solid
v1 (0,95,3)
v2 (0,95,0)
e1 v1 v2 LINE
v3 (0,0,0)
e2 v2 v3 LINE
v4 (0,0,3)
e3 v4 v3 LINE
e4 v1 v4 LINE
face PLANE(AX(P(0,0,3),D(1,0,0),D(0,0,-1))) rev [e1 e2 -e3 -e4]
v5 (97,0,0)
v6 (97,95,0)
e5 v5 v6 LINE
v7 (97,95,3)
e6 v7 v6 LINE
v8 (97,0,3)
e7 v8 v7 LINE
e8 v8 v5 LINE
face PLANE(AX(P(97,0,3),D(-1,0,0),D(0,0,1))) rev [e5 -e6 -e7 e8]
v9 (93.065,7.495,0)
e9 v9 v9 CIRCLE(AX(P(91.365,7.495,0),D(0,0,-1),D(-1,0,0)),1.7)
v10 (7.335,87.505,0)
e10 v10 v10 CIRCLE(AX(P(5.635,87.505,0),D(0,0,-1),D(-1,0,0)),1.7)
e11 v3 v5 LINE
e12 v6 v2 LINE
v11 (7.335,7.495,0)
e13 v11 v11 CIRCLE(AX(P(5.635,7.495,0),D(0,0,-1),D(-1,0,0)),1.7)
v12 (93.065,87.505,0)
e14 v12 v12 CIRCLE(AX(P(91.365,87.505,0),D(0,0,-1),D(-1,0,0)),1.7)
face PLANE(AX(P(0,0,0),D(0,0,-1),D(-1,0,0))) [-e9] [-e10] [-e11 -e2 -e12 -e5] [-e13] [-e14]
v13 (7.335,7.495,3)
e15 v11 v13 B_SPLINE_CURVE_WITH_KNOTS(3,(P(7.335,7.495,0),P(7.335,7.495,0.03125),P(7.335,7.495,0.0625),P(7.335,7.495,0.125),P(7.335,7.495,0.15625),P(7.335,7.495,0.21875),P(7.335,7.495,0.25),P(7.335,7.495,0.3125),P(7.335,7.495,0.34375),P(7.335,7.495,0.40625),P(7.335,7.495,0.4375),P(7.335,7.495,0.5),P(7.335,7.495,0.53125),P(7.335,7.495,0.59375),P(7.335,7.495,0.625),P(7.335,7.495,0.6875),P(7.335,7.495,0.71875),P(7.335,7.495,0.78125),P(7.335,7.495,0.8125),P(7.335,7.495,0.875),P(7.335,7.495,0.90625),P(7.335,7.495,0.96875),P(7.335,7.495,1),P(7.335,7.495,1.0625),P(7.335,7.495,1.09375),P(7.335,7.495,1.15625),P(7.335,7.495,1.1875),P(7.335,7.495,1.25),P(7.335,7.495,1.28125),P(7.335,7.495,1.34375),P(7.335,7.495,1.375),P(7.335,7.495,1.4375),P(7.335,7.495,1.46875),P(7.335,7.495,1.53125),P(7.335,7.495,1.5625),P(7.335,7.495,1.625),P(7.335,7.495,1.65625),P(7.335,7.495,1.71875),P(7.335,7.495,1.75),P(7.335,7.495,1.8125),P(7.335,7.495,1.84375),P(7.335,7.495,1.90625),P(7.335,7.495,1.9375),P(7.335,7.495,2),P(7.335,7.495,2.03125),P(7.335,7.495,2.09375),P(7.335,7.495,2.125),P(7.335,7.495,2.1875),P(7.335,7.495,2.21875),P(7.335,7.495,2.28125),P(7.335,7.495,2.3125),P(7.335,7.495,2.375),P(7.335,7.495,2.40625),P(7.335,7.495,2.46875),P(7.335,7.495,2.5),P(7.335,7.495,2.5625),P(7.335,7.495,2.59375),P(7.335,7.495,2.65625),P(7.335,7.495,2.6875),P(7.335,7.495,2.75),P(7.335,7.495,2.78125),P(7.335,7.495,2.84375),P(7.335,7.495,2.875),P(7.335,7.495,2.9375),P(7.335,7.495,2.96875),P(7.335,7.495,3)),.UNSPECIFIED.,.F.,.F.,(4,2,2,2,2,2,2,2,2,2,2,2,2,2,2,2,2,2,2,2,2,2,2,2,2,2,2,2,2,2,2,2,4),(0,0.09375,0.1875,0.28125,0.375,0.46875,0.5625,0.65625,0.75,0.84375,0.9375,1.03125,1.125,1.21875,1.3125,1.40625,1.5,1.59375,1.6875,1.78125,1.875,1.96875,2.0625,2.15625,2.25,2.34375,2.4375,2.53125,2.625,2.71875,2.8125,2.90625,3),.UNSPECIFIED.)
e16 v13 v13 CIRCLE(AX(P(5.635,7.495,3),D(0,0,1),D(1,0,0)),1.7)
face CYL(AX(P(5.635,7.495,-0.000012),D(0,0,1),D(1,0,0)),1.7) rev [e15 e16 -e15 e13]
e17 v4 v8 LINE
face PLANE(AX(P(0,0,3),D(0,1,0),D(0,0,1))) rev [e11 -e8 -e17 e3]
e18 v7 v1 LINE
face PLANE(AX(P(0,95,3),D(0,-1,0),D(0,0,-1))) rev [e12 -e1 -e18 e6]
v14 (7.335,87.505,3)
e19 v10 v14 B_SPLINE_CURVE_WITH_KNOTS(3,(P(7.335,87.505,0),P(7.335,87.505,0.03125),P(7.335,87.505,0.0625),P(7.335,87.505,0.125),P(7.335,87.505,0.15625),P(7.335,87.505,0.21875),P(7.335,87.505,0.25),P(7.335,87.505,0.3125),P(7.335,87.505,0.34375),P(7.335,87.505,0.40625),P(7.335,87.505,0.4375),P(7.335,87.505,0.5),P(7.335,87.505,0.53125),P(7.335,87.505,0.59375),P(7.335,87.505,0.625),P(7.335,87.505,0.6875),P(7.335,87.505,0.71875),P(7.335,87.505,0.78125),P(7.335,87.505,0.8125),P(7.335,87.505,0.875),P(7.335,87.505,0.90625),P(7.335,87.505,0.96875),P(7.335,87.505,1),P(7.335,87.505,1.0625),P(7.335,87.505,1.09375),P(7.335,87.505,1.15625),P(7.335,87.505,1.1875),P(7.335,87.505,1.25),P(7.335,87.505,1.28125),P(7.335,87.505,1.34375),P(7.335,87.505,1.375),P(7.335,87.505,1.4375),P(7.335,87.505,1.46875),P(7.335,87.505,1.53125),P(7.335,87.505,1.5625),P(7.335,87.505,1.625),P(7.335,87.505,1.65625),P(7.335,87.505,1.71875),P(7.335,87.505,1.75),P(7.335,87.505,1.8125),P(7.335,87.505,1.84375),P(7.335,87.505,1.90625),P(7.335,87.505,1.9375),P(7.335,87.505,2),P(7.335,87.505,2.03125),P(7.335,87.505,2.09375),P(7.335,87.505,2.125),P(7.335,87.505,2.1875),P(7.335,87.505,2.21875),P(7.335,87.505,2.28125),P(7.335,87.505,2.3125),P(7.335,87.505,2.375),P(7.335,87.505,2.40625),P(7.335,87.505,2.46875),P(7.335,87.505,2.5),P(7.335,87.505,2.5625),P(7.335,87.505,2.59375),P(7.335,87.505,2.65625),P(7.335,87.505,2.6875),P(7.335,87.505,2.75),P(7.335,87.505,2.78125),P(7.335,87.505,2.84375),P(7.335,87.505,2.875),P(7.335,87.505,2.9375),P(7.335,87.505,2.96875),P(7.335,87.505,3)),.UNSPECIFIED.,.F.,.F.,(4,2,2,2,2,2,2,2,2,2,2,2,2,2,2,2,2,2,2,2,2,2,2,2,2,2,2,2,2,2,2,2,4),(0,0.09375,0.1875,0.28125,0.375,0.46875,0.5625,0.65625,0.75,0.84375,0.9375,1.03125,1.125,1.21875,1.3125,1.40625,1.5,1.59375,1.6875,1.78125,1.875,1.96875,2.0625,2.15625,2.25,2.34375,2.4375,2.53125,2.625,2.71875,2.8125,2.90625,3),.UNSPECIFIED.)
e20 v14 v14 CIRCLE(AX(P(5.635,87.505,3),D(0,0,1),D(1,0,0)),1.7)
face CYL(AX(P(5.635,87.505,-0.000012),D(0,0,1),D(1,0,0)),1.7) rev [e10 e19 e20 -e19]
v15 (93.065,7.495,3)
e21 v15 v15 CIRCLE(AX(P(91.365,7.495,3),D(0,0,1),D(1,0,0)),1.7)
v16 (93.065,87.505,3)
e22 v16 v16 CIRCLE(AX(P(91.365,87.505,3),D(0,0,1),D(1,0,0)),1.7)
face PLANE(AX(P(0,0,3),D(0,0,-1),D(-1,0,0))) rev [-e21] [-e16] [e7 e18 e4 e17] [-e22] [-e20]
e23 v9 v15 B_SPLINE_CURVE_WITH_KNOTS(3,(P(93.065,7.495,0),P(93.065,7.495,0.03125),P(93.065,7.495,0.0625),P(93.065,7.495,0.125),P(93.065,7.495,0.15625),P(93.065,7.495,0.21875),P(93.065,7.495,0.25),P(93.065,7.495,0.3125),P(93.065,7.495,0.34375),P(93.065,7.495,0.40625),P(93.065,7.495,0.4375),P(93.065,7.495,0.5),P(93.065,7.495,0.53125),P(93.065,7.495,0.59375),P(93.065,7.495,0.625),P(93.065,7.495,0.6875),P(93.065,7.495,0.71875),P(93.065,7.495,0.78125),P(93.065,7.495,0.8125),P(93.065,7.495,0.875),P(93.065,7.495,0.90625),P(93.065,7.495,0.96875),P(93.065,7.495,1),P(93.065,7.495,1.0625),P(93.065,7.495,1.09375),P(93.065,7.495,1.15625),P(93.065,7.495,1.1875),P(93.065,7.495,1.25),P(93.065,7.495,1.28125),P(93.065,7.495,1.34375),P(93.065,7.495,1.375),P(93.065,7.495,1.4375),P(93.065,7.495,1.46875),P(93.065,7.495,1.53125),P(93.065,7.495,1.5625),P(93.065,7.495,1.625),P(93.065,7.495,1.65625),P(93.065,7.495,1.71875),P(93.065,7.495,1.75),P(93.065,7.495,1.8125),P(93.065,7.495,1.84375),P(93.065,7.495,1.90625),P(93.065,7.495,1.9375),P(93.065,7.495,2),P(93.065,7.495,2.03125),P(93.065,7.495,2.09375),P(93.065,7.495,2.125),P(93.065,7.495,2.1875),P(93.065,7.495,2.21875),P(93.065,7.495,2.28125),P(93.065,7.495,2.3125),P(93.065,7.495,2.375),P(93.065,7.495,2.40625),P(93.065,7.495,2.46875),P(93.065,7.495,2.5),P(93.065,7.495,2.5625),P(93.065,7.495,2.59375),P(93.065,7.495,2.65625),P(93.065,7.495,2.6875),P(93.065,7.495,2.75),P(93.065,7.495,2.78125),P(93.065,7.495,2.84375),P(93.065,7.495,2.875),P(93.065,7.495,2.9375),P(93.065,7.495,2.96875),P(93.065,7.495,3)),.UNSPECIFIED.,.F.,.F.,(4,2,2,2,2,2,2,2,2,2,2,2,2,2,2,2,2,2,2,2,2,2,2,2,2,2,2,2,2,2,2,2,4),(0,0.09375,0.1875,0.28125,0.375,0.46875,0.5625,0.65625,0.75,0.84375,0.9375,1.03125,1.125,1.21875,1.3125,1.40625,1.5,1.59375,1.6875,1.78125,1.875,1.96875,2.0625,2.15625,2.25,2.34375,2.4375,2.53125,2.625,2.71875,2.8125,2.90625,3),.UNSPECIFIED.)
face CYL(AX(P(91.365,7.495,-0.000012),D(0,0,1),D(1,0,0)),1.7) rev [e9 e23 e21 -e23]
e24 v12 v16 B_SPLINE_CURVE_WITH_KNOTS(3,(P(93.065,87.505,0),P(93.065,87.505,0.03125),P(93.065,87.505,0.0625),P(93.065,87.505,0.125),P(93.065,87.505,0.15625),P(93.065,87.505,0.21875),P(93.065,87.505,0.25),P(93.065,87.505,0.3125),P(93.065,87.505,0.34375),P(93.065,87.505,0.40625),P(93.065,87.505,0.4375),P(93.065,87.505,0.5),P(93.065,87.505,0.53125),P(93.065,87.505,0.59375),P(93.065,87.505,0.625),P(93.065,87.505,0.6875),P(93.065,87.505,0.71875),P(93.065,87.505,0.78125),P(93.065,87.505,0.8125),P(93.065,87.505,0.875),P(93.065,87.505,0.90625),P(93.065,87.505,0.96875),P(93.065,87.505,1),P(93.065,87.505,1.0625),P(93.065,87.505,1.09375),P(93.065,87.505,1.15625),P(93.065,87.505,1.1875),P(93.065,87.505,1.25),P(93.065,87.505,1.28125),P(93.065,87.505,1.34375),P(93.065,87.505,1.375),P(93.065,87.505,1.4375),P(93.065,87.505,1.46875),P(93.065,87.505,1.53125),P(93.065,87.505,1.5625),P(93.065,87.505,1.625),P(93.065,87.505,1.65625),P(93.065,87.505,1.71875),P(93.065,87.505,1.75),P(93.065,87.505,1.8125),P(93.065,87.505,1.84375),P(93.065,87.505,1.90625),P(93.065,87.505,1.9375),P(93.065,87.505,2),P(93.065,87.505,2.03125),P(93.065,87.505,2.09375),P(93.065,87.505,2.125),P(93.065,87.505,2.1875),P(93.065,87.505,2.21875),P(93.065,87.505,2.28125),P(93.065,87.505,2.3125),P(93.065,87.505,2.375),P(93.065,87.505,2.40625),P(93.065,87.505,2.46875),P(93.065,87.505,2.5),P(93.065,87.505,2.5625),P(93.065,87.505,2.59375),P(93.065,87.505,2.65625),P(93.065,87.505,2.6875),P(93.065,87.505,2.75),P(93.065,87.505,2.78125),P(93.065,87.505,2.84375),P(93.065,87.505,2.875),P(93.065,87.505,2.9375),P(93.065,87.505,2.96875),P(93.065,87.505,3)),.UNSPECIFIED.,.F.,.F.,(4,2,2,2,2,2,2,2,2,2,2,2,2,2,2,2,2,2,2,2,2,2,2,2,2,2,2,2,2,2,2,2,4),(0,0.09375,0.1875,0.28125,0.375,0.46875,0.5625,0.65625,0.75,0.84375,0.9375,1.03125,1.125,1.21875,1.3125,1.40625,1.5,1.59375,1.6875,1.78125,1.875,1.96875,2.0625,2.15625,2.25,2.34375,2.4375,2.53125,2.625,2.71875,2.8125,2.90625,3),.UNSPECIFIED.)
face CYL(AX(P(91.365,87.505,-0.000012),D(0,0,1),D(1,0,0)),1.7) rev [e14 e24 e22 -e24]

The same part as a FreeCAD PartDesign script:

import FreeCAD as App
import Part
import Sketcher


def add_polygon(sketch, points):
    """Adds a closed chain of lines whose ends are joined by coincident constraints."""
    first, n = sketch.GeometryCount, len(points)
    for a, b in zip(points, points[1:] + points[:1]):
        sketch.addGeometry(Part.LineSegment(App.Vector(*a, 0), App.Vector(*b, 0)), False)
    for i in range(n):
        sketch.addConstraint(Sketcher.Constraint("Coincident", first + i, 2, first + (i + 1) % n, 1))

doc = App.newDocument("Part")
body = doc.addObject("PartDesign::Body", "Body")

sketch1 = body.newObject("Sketcher::SketchObject", "Sketch")
sketch1.AttachmentSupport = (doc.getObject("XY_Plane"), [""])
sketch1.MapMode = "FlatFace"
add_polygon(sketch1, [(0, 95), (0, 0), (97, 0), (97, 95)])
sketch1.addConstraint([
    Sketcher.Constraint("Vertical", 0),
    Sketcher.Constraint("Horizontal", 1),
    Sketcher.Constraint("Vertical", 2),
    Sketcher.Constraint("Horizontal", 3),
    Sketcher.Constraint("Coincident", 0, 2, -1, 1),
    Sketcher.Constraint("DistanceX", 1, 1, 1, 2, 97.0),
    Sketcher.Constraint("DistanceY", 0, 2, 0, 1, 95.0),
])
pad1 = body.newObject("PartDesign::Pad", "Pad")
pad1.Profile = sketch1
pad1.Length = 3

sketch2 = body.newObject("Sketcher::SketchObject", "Sketch001")
sketch2.AttachmentSupport = (doc.getObject("XY_Plane"), [""])
sketch2.MapMode = "FlatFace"
sketch2.addGeometry([
    Part.Circle(App.Vector(5.635, 7.495, 0), App.Vector(0, 0, 1), 1.7),
    Part.Circle(App.Vector(91.365, 7.495, 0), App.Vector(0, 0, 1), 1.7),
    Part.Circle(App.Vector(5.635, 87.505, 0), App.Vector(0, 0, 1), 1.7),
    Part.Circle(App.Vector(91.365, 87.505, 0), App.Vector(0, 0, 1), 1.7),
], False)
sketch2.addConstraint([
    Sketcher.Constraint("Equal", 0, 1),
    Sketcher.Constraint("Equal", 1, 2),
    Sketcher.Constraint("Equal", 2, 3),
    Sketcher.Constraint("Horizontal", 0, 3, 1, 3),
    Sketcher.Constraint("Horizontal", 2, 3, 3, 3),
    Sketcher.Constraint("Vertical", 0, 3, 2, 3),
    Sketcher.Constraint("Vertical", 1, 3, 3, 3),
    Sketcher.Constraint("Diameter", 0, 3.4),
    Sketcher.Constraint("DistanceX", 0, 3, 1, 3, 85.73),
    Sketcher.Constraint("DistanceY", 0, 3, 2, 3, 80.01),
    Sketcher.Constraint("DistanceX", -1, 1, 0, 3, 5.635),
    Sketcher.Constraint("DistanceY", -1, 1, 0, 3, 7.495),
])
pocket1 = body.newObject("PartDesign::Pocket", "Pocket")
pocket1.Profile = sketch2
pocket1.Type = "ThroughAll"
pocket1.Midplane = True

doc.recompute()
